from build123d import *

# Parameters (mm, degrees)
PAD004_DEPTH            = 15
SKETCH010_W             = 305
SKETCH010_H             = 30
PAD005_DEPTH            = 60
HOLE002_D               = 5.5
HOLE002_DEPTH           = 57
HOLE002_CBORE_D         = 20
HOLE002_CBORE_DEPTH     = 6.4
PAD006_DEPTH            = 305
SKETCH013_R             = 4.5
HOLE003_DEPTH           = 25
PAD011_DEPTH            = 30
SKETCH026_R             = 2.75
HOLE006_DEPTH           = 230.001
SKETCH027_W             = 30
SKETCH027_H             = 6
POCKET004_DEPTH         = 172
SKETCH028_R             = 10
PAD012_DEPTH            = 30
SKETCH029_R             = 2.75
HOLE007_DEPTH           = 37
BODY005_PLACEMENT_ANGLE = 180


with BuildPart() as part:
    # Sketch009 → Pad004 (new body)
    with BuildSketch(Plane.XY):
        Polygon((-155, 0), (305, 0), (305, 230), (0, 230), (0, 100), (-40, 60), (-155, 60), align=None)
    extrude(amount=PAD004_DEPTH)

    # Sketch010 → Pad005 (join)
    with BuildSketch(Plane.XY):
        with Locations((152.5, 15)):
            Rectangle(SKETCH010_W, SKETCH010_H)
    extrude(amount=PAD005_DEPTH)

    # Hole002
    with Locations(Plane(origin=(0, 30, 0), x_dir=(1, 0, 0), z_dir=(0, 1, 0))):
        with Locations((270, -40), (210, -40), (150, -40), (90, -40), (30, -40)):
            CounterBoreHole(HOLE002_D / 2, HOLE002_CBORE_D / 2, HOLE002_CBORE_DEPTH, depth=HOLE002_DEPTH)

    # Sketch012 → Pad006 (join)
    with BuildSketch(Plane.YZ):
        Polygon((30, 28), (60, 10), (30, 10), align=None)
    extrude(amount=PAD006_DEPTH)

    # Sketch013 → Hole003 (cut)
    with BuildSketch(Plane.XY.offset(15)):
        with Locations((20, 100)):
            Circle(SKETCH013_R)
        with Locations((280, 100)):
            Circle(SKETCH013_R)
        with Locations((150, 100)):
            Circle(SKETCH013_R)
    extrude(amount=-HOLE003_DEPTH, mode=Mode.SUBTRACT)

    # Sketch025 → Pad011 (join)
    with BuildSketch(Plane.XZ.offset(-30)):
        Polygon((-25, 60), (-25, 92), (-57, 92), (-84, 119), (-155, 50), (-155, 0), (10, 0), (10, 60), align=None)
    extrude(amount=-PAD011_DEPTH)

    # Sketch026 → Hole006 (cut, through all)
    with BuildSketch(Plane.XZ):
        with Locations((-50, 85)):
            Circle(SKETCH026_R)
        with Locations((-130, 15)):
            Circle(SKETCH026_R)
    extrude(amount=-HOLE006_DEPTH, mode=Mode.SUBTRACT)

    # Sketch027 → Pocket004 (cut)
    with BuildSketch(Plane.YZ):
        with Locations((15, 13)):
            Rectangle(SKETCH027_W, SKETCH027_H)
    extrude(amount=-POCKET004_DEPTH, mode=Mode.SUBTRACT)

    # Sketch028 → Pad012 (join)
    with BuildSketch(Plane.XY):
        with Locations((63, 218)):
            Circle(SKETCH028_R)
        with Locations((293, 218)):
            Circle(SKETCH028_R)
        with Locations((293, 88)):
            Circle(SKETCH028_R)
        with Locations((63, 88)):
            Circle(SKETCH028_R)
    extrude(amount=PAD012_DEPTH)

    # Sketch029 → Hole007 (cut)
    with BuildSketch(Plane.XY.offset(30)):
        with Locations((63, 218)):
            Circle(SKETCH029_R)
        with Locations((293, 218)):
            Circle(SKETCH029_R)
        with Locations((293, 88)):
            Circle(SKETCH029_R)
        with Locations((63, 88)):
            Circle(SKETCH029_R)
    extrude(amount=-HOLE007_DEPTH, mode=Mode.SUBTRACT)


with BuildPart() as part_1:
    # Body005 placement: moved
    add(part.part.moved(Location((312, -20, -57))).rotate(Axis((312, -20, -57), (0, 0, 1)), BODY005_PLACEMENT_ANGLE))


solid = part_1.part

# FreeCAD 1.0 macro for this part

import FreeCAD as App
import Part
import Sketcher
from FreeCAD import Vector
Q = App.Units.Quantity

doc = App.newDocument("Part")
body = doc.addObject("PartDesign::Body", "Body")

# Sketch on XY plane
sketch1 = body.newObject("Sketcher::SketchObject", "Sketch")
sketch1.AttachmentSupport = (doc.getObject("XY_Plane"), [""])
sketch1.MapMode = "FlatFace"
sketch1.addGeometry([
    Part.LineSegment(Vector(-155, 0, 0), Vector(305, 0, 0)),  # 0
    Part.LineSegment(Vector(305, 0, 0), Vector(305, 230, 0)),  # 1
    Part.LineSegment(Vector(305, 230, 0), Vector(0, 230, 0)),  # 2
    Part.LineSegment(Vector(0, 230, 0), Vector(0, 100, 0)),  # 3
    Part.LineSegment(Vector(0, 100, 0), Vector(-40, 60, 0)),  # 4
    Part.LineSegment(Vector(-40, 60, 0), Vector(-155, 60, 0)),  # 5
    Part.LineSegment(Vector(-155, 60, 0), Vector(-155, 0, 0)),  # 6
], False)
sketch1.addConstraint([
    Sketcher.Constraint("Coincident", 0, 2, 1, 1),
    Sketcher.Constraint("Coincident", 1, 2, 2, 1),
    Sketcher.Constraint("Coincident", 2, 2, 3, 1),
    Sketcher.Constraint("Coincident", 3, 2, 4, 1),
    Sketcher.Constraint("Coincident", 4, 2, 5, 1),
    Sketcher.Constraint("Coincident", 5, 2, 6, 1),
    Sketcher.Constraint("Coincident", 6, 2, 0, 1),
    Sketcher.Constraint("Horizontal", 0),
    Sketcher.Constraint("Vertical", 1),
    Sketcher.Constraint("Horizontal", 2),
    Sketcher.Constraint("Vertical", 3),
    Sketcher.Constraint("Horizontal", 5),
    Sketcher.Constraint("Vertical", 6),
    Sketcher.Constraint("PointOnObject", 0, 2, -1),
    Sketcher.Constraint("PointOnObject", 2, 2, -2),
    Sketcher.Constraint("DistanceX", 0, 1, 0, 2, 460.0),
    Sketcher.Constraint("DistanceX", 2, 2, 2, 1, 305.0),
    Sketcher.Constraint("DistanceX", 5, 2, 5, 1, 115.0),
    Sketcher.Constraint("DistanceY", 1, 1, 1, 2, 230.0),
    Sketcher.Constraint("DistanceY", 3, 2, 3, 1, 130.0),
    Sketcher.Constraint("DistanceY", 6, 2, 6, 1, 60.0),
])
pad1 = body.newObject("PartDesign::Pad", "Pad")
pad1.Profile = sketch1
pad1.Length = 15

# Sketch on XY plane
sketch2 = body.newObject("Sketcher::SketchObject", "Sketch001")
sketch2.AttachmentSupport = (doc.getObject("XY_Plane"), [""])
sketch2.MapMode = "FlatFace"
sketch2.addGeometry([
    Part.LineSegment(Vector(0, 30, 0), Vector(0, 0, 0)),
    Part.LineSegment(Vector(0, 0, 0), Vector(305, 0, 0)),
    Part.LineSegment(Vector(305, 0, 0), Vector(305, 30, 0)),
    Part.LineSegment(Vector(305, 30, 0), Vector(0, 30, 0)),
], False)
sketch2.addConstraint([
    Sketcher.Constraint("Coincident", 0, 2, 1, 1),
    Sketcher.Constraint("Coincident", 1, 2, 2, 1),
    Sketcher.Constraint("Coincident", 2, 2, 3, 1),
    Sketcher.Constraint("Coincident", 3, 2, 0, 1),
    Sketcher.Constraint("Vertical", 0),
    Sketcher.Constraint("Horizontal", 1),
    Sketcher.Constraint("Vertical", 2),
    Sketcher.Constraint("Horizontal", 3),
    Sketcher.Constraint("Coincident", 0, 2, -1, 1),
    Sketcher.Constraint("DistanceX", 1, 1, 1, 2, 305.0),
    Sketcher.Constraint("DistanceY", 0, 2, 0, 1, 30.0),
])
pad2 = body.newObject("PartDesign::Pad", "Pad001")
pad2.Profile = sketch2
pad2.Length = 60

# Sketch on XZ plane
sketch3 = body.newObject("Sketcher::SketchObject", "Sketch002")
sketch3.AttachmentSupport = (doc.getObject("XZ_Plane"), [""])
sketch3.MapMode = "FlatFace"
sketch3.AttachmentOffset = App.Placement(Vector(0, 0, -30), App.Rotation())
sketch3.addGeometry([
    Part.Circle(Vector(270, 40, 0), Vector(0, 0, 1), 2.8),  # 0
    Part.Circle(Vector(210, 40, 0), Vector(0, 0, 1), 2.8),  # 1
    Part.Circle(Vector(150, 40, 0), Vector(0, 0, 1), 2.8),  # 2
    Part.Circle(Vector(90, 40, 0), Vector(0, 0, 1), 2.8),  # 3
    Part.Circle(Vector(30, 40, 0), Vector(0, 0, 1), 2.8),  # 4
], False)
sketch3.addConstraint([
    Sketcher.Constraint("Equal", 0, 1),
    Sketcher.Constraint("Equal", 1, 2),
    Sketcher.Constraint("Equal", 2, 3),
    Sketcher.Constraint("Equal", 3, 4),
    Sketcher.Constraint("Horizontal", 0, 3, 1, 3),
    Sketcher.Constraint("Horizontal", 1, 3, 2, 3),
    Sketcher.Constraint("Horizontal", 2, 3, 3, 3),
    Sketcher.Constraint("Horizontal", 3, 3, 4, 3),
    Sketcher.Constraint("Diameter", 0, 5.5),
    Sketcher.Constraint("DistanceX", -1, 1, 0, 3, 270.0),
    Sketcher.Constraint("DistanceY", -1, 1, 0, 3, 40.0),
    Sketcher.Constraint("DistanceX", -1, 1, 1, 3, 210.0),
    Sketcher.Constraint("DistanceX", -1, 1, 2, 3, 150.0),
    Sketcher.Constraint("DistanceX", -1, 1, 3, 3, 90.0),
    Sketcher.Constraint("DistanceX", -1, 1, 4, 3, 30.0),
])
doc.recompute()
hole = body.newObject("PartDesign::Hole", "Hole")
hole.Profile = sketch3
hole.ThreadType = "None"
hole.Diameter = 5.5
hole.DepthType = "Dimension"
hole.Depth = 57
hole.DrillPoint = "Flat"
hole.HoleCutType = "Counterbore"
hole.HoleCutDiameter = 20
hole.HoleCutDepth = 6.4
hole.Reversed = True

# Sketch on YZ plane
sketch4 = body.newObject("Sketcher::SketchObject", "Sketch003")
sketch4.AttachmentSupport = (doc.getObject("YZ_Plane"), [""])
sketch4.MapMode = "FlatFace"
sketch4.addGeometry([
    Part.LineSegment(Vector(60, 10, 0), Vector(30, 28, 0)),
    Part.LineSegment(Vector(30, 28, 0), Vector(30, 10, 0)),
    Part.LineSegment(Vector(30, 10, 0), Vector(60, 10, 0)),
], False)
sketch4.addConstraint([
    Sketcher.Constraint("Coincident", 0, 2, 1, 1),
    Sketcher.Constraint("Coincident", 1, 2, 2, 1),
    Sketcher.Constraint("Coincident", 2, 2, 0, 1),
    Sketcher.Constraint("Vertical", 1),
    Sketcher.Constraint("Horizontal", 2),
    Sketcher.Constraint("DistanceX", 2, 1, 2, 2, 30.0),
    Sketcher.Constraint("DistanceY", 1, 2, 1, 1, 18.0),
    Sketcher.Constraint("DistanceX", -1, 1, 0, 2, 30.0),
    Sketcher.Constraint("DistanceY", -1, 1, 0, 2, 28.0),
])
pad3 = body.newObject("PartDesign::Pad", "Pad002")
pad3.Profile = sketch4
pad3.Length = 305

# Sketch on XY plane
sketch5 = body.newObject("Sketcher::SketchObject", "Sketch004")
sketch5.AttachmentSupport = (doc.getObject("XY_Plane"), [""])
sketch5.MapMode = "FlatFace"
sketch5.AttachmentOffset = App.Placement(Vector(0, 0, 15), App.Rotation())
sketch5.addGeometry([
    Part.Circle(Vector(20, 100, 0), Vector(0, 0, 1), 4.5),
    Part.Circle(Vector(280, 100, 0), Vector(0, 0, 1), 4.5),
    Part.Circle(Vector(150, 100, 0), Vector(0, 0, 1), 4.5),
], False)
sketch5.addConstraint([
    Sketcher.Constraint("Equal", 0, 1),
    Sketcher.Constraint("Equal", 1, 2),
    Sketcher.Constraint("Horizontal", 0, 3, 1, 3),
    Sketcher.Constraint("Horizontal", 1, 3, 2, 3),
    Sketcher.Constraint("Diameter", 0, 9.0),
    Sketcher.Constraint("DistanceX", -1, 1, 0, 3, 20.0),
    Sketcher.Constraint("DistanceY", -1, 1, 0, 3, 100.0),
    Sketcher.Constraint("DistanceX", -1, 1, 1, 3, 280.0),
    Sketcher.Constraint("DistanceX", -1, 1, 2, 3, 150.0),
])
pocket1 = body.newObject("PartDesign::Pocket", "Pocket")
pocket1.Profile = sketch5
pocket1.Length = 25

# Sketch on XZ plane
sketch6 = body.newObject("Sketcher::SketchObject", "Sketch005")
sketch6.AttachmentSupport = (doc.getObject("XZ_Plane"), [""])
sketch6.MapMode = "FlatFace"
sketch6.AttachmentOffset = App.Placement(Vector(0, 0, -30), App.Rotation())
sketch6.addGeometry([
    Part.LineSegment(Vector(-25, 60, 0), Vector(-25, 92, 0)),  # 0
    Part.LineSegment(Vector(-25, 92, 0), Vector(-57, 92, 0)),  # 1
    Part.LineSegment(Vector(-57, 92, 0), Vector(-84, 119, 0)),  # 2
    Part.LineSegment(Vector(-84, 119, 0), Vector(-155, 50, 0)),  # 3
    Part.LineSegment(Vector(-155, 50, 0), Vector(-155, 0, 0)),  # 4
    Part.LineSegment(Vector(-155, 0, 0), Vector(10, 0, 0)),  # 5
    Part.LineSegment(Vector(10, 0, 0), Vector(10, 60, 0)),  # 6
    Part.LineSegment(Vector(10, 60, 0), Vector(-25, 60, 0)),  # 7
], False)
sketch6.addConstraint([
    Sketcher.Constraint("Coincident", 0, 2, 1, 1),
    Sketcher.Constraint("Coincident", 1, 2, 2, 1),
    Sketcher.Constraint("Coincident", 2, 2, 3, 1),
    Sketcher.Constraint("Coincident", 3, 2, 4, 1),
    Sketcher.Constraint("Coincident", 4, 2, 5, 1),
    Sketcher.Constraint("Coincident", 5, 2, 6, 1),
    Sketcher.Constraint("Coincident", 6, 2, 7, 1),
    Sketcher.Constraint("Coincident", 7, 2, 0, 1),
    Sketcher.Constraint("Vertical", 0),
    Sketcher.Constraint("Horizontal", 1),
    Sketcher.Constraint("Vertical", 4),
    Sketcher.Constraint("Horizontal", 5),
    Sketcher.Constraint("Vertical", 6),
    Sketcher.Constraint("Horizontal", 7),
    Sketcher.Constraint("PointOnObject", 4, 2, -1),
    Sketcher.Constraint("Equal", 1, 0),
    Sketcher.Constraint("DistanceX", 1, 2, 1, 1, 32.0),
    Sketcher.Constraint("DistanceX", 5, 1, 5, 2, 165.0),
    Sketcher.Constraint("DistanceX", 7, 2, 7, 1, 35.0),
    Sketcher.Constraint("DistanceY", 4, 2, 4, 1, 50.0),
    Sketcher.Constraint("DistanceY", 6, 1, 6, 2, 60.0),
    Sketcher.Constraint("Angle", 2, Q("135 deg")),
    Sketcher.Constraint("DistanceX", 0, 2, -1, 1, 25.0),
    Sketcher.Constraint("DistanceX", 2, 2, -1, 1, 84.0),
])
pad4 = body.newObject("PartDesign::Pad", "Pad003")
pad4.Profile = sketch6
pad4.Length = 30
pad4.Reversed = True

# Sketch on XZ plane
sketch7 = body.newObject("Sketcher::SketchObject", "Sketch006")
sketch7.AttachmentSupport = (doc.getObject("XZ_Plane"), [""])
sketch7.MapMode = "FlatFace"
sketch7.addGeometry([
    Part.Circle(Vector(-50, 85, 0), Vector(0, 0, 1), 2.8),
    Part.Circle(Vector(-130, 15, 0), Vector(0, 0, 1), 2.8),
], False)
sketch7.addConstraint([
    Sketcher.Constraint("Equal", 0, 1),
    Sketcher.Constraint("Diameter", 0, 5.5),
    Sketcher.Constraint("DistanceX", 0, 3, -1, 1, 50.0),
    Sketcher.Constraint("DistanceY", -1, 1, 0, 3, 85.0),
    Sketcher.Constraint("DistanceX", 1, 3, -1, 1, 130.0),
    Sketcher.Constraint("DistanceY", -1, 1, 1, 3, 15.0),
])
pocket2 = body.newObject("PartDesign::Pocket", "Pocket001")
pocket2.Profile = sketch7
pocket2.Type = "ThroughAll"

# Sketch on YZ plane
sketch8 = body.newObject("Sketcher::SketchObject", "Sketch007")
sketch8.AttachmentSupport = (doc.getObject("YZ_Plane"), [""])
sketch8.MapMode = "FlatFace"
sketch8.addGeometry([
    Part.LineSegment(Vector(0, 16, 0), Vector(0, 10, 0)),
    Part.LineSegment(Vector(0, 10, 0), Vector(30, 10, 0)),
    Part.LineSegment(Vector(30, 10, 0), Vector(30, 16, 0)),
    Part.LineSegment(Vector(30, 16, 0), Vector(0, 16, 0)),
], False)
sketch8.addConstraint([
    Sketcher.Constraint("Coincident", 0, 2, 1, 1),
    Sketcher.Constraint("Coincident", 1, 2, 2, 1),
    Sketcher.Constraint("Coincident", 2, 2, 3, 1),
    Sketcher.Constraint("Coincident", 3, 2, 0, 1),
    Sketcher.Constraint("Vertical", 0),
    Sketcher.Constraint("Horizontal", 1),
    Sketcher.Constraint("Vertical", 2),
    Sketcher.Constraint("Horizontal", 3),
    Sketcher.Constraint("PointOnObject", 0, 2, -2),
    Sketcher.Constraint("DistanceX", 1, 1, 1, 2, 30.0),
    Sketcher.Constraint("DistanceY", 0, 2, 0, 1, 6.0),
    Sketcher.Constraint("DistanceY", -1, 1, 0, 2, 10.0),
])
pocket3 = body.newObject("PartDesign::Pocket", "Pocket002")
pocket3.Profile = sketch8
pocket3.Length = 172

# Sketch on XY plane
sketch9 = body.newObject("Sketcher::SketchObject", "Sketch008")
sketch9.AttachmentSupport = (doc.getObject("XY_Plane"), [""])
sketch9.MapMode = "FlatFace"
sketch9.addGeometry([
    Part.Circle(Vector(63, 218, 0), Vector(0, 0, 1), 10),
    Part.Circle(Vector(293, 218, 0), Vector(0, 0, 1), 10),
    Part.Circle(Vector(293, 88, 0), Vector(0, 0, 1), 10),
    Part.Circle(Vector(63, 88, 0), Vector(0, 0, 1), 10),
], False)
sketch9.addConstraint([
    Sketcher.Constraint("Equal", 0, 1),
    Sketcher.Constraint("Equal", 1, 2),
    Sketcher.Constraint("Equal", 2, 3),
    Sketcher.Constraint("Horizontal", 0, 3, 1, 3),
    Sketcher.Constraint("Horizontal", 2, 3, 3, 3),
    Sketcher.Constraint("Vertical", 1, 3, 2, 3),
    Sketcher.Constraint("Vertical", 0, 3, 3, 3),
    Sketcher.Constraint("Diameter", 0, 20.0),
    Sketcher.Constraint("DistanceX", -1, 1, 0, 3, 63.0),
    Sketcher.Constraint("DistanceY", -1, 1, 0, 3, 218.0),
    Sketcher.Constraint("DistanceX", -1, 1, 1, 3, 293.0),
    Sketcher.Constraint("DistanceY", -1, 1, 2, 3, 88.0),
])
pad5 = body.newObject("PartDesign::Pad", "Pad004")
pad5.Profile = sketch9
pad5.Length = 30

# Sketch on XY plane
sketch10 = body.newObject("Sketcher::SketchObject", "Sketch009")
sketch10.AttachmentSupport = (doc.getObject("XY_Plane"), [""])
sketch10.MapMode = "FlatFace"
sketch10.AttachmentOffset = App.Placement(Vector(0, 0, 30), App.Rotation())
sketch10.addGeometry([
    Part.Circle(Vector(63, 218, 0), Vector(0, 0, 1), 2.8),
    Part.Circle(Vector(293, 218, 0), Vector(0, 0, 1), 2.8),
    Part.Circle(Vector(293, 88, 0), Vector(0, 0, 1), 2.8),
    Part.Circle(Vector(63, 88, 0), Vector(0, 0, 1), 2.8),
], False)
sketch10.addConstraint([
    Sketcher.Constraint("Equal", 0, 1),
    Sketcher.Constraint("Equal", 1, 2),
    Sketcher.Constraint("Equal", 2, 3),
    Sketcher.Constraint("Horizontal", 0, 3, 1, 3),
    Sketcher.Constraint("Horizontal", 2, 3, 3, 3),
    Sketcher.Constraint("Vertical", 1, 3, 2, 3),
    Sketcher.Constraint("Vertical", 0, 3, 3, 3),
    Sketcher.Constraint("Diameter", 0, 5.5),
    Sketcher.Constraint("DistanceX", -1, 1, 0, 3, 63.0),
    Sketcher.Constraint("DistanceY", -1, 1, 0, 3, 218.0),
    Sketcher.Constraint("DistanceX", -1, 1, 1, 3, 293.0),
    Sketcher.Constraint("DistanceY", -1, 1, 2, 3, 88.0),
])
pocket4 = body.newObject("PartDesign::Pocket", "Pocket003")
pocket4.Profile = sketch10
pocket4.Length = 37
body2 = doc.addObject("PartDesign::Body", "Body001")
doc.recompute()

body.Placement = App.Placement(Vector(312, -20, -57), App.Rotation(Vector(0, 0, 1), 180))
boolean = body2.newObject("PartDesign::Boolean", "Boolean")
boolean.Type = "Fuse"
boolean.addObjects([body])

doc.recompute()
